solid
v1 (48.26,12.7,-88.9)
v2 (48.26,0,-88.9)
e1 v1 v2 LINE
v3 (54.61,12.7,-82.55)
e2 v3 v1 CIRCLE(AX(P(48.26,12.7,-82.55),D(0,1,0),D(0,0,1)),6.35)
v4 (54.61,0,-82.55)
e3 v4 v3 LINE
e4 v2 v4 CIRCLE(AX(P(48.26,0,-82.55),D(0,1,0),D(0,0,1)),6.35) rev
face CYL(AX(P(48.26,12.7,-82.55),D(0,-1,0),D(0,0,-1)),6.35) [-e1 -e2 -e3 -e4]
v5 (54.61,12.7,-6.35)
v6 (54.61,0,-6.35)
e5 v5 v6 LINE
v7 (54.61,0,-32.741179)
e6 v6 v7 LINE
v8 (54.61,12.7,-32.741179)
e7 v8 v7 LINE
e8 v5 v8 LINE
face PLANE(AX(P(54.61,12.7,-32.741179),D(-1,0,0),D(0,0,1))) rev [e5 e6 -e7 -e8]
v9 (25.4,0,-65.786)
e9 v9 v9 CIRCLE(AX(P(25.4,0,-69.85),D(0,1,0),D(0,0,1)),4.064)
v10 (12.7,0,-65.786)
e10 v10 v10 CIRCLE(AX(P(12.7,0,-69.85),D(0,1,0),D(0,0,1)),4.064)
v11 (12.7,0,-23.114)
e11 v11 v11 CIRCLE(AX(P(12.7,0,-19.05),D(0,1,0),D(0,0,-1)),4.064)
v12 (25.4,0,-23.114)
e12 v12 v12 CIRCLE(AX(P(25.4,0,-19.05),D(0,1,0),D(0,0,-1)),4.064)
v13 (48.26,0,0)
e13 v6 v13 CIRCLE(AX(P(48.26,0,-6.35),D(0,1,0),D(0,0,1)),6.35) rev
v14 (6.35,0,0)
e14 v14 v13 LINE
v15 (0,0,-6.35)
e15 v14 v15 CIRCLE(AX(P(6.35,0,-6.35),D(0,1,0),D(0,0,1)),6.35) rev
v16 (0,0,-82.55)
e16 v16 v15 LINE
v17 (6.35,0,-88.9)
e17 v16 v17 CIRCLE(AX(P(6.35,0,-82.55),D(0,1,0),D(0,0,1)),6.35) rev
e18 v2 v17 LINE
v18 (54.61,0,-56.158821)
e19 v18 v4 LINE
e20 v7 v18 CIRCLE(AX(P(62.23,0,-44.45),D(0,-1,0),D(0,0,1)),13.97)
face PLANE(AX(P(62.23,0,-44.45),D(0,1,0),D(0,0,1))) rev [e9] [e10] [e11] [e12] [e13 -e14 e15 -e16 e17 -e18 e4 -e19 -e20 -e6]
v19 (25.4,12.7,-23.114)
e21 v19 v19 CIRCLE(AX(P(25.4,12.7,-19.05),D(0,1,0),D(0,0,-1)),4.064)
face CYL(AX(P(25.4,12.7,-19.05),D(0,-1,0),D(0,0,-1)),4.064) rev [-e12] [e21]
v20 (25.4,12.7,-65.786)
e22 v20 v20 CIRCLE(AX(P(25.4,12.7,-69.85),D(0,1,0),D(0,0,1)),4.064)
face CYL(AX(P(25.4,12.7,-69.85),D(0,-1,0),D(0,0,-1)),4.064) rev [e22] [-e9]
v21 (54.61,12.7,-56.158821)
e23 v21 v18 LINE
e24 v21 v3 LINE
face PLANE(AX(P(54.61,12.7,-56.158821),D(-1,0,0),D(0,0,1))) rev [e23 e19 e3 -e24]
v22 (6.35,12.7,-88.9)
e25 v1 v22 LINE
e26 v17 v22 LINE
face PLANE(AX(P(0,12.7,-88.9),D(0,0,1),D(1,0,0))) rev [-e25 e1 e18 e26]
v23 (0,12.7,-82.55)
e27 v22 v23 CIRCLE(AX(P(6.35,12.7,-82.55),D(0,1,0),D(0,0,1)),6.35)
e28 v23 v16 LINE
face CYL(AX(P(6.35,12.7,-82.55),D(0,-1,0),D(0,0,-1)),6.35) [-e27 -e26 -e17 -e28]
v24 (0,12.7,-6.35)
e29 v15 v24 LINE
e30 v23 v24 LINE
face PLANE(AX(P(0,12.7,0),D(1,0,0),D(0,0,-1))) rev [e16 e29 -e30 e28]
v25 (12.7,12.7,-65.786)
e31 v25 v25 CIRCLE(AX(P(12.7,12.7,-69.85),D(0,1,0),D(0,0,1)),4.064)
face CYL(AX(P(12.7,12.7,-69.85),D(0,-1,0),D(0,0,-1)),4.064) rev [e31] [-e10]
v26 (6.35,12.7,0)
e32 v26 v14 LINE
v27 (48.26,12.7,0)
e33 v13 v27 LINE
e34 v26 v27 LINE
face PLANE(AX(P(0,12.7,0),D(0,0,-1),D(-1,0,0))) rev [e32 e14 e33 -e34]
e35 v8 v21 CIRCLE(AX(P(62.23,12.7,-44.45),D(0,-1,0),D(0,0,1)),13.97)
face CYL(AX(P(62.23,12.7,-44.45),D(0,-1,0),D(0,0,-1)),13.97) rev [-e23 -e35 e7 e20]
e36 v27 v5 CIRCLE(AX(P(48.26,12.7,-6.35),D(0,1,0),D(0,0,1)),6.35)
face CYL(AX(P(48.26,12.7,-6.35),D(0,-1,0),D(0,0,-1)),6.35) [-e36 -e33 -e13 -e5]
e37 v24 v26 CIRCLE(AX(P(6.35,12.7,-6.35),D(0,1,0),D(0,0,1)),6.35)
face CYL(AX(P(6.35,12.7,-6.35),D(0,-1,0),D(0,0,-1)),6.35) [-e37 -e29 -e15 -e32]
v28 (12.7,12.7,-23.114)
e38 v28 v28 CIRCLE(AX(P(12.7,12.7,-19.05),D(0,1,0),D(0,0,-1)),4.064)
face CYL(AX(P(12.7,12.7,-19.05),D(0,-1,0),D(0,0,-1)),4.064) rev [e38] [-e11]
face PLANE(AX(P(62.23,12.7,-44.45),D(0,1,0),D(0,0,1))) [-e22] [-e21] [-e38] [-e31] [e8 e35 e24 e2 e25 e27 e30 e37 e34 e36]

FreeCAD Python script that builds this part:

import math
import FreeCAD as App
import Part
import Sketcher

V = App.Vector
Q = App.Units.Quantity


def edges_at(feature, points):
    """Names of the edges that pass closest to the given points."""
    edges = feature.Shape.Edges
    near = lambda p: min(range(len(edges)), key=lambda i: edges[i].distToShape(Part.Vertex(*p))[0])
    return sorted({f"Edge{near(p) + 1}" for p in points})

doc = App.newDocument("Part")
body = doc.addObject("PartDesign::Body", "Body")

sketch1 = doc.addObject("Sketcher::SketchObject", "Sketch")
body.addObject(sketch1)
sketch1.AttachmentSupport = (doc.XZ_Plane, [""])
sketch1.MapMode = "FlatFace"
sketch1.addGeometry(Part.LineSegment(V(54.6, 0, 0), V(54.6, -32.7, 0)), False)
sketch1.addGeometry(Part.ArcOfCircle(Part.Circle(V(62.2, -44.5, 0), V(0, 0, 1), 14), math.radians(123), math.radians(237)), False)
sketch1.addGeometry(Part.LineSegment(V(54.6, -56.2, 0), V(54.6, -88.9, 0)), False)
sketch1.addGeometry(Part.LineSegment(V(54.6, -88.9, 0), V(0, -88.9, 0)), False)
sketch1.addGeometry(Part.LineSegment(V(0, -88.9, 0), V(0, 0, 0)), False)
sketch1.addGeometry(Part.LineSegment(V(0, 0, 0), V(54.6, 0, 0)), False)
sketch1.addGeometry(Part.Circle(V(25.4, -19.1, 0), V(0, 0, 1), 4.1), False)
sketch1.addGeometry(Part.Circle(V(12.7, -19.1, 0), V(0, 0, 1), 4.1), False)
sketch1.addGeometry(Part.Circle(V(25.4, -69.8, 0), V(0, 0, 1), 4.1), False)
sketch1.addGeometry(Part.Circle(V(12.7, -69.8, 0), V(0, 0, 1), 4.1), False)
sketch1.addConstraint(Sketcher.Constraint("Coincident", 0, 2, 1, 1))
sketch1.addConstraint(Sketcher.Constraint("Coincident", 1, 2, 2, 1))
sketch1.addConstraint(Sketcher.Constraint("Coincident", 2, 2, 3, 1))
sketch1.addConstraint(Sketcher.Constraint("Coincident", 3, 2, 4, 1))
sketch1.addConstraint(Sketcher.Constraint("Coincident", 4, 2, 5, 1))
sketch1.addConstraint(Sketcher.Constraint("Coincident", 5, 2, 0, 1))
sketch1.addConstraint(Sketcher.Constraint("Vertical", 0))
sketch1.addConstraint(Sketcher.Constraint("Vertical", 2))
sketch1.addConstraint(Sketcher.Constraint("Horizontal", 3))
sketch1.addConstraint(Sketcher.Constraint("Vertical", 4))
sketch1.addConstraint(Sketcher.Constraint("Horizontal", 5))
sketch1.addConstraint(Sketcher.Constraint("Coincident", 4, 2, -1, 1))
sketch1.addConstraint(Sketcher.Constraint("Equal", 6, 7))
sketch1.addConstraint(Sketcher.Constraint("Equal", 7, 8))
sketch1.addConstraint(Sketcher.Constraint("Equal", 8, 9))
sketch1.addConstraint(Sketcher.Constraint("Horizontal", 6, 3, 7, 3))
sketch1.addConstraint(Sketcher.Constraint("Horizontal", 8, 3, 9, 3))
sketch1.addConstraint(Sketcher.Constraint("Vertical", 6, 3, 8, 3))
sketch1.addConstraint(Sketcher.Constraint("Vertical", 7, 3, 9, 3))
sketch1.addConstraint(Sketcher.Constraint("Vertical", 0, 2, 1, 2))
sketch1.addConstraint(Sketcher.Constraint("Equal", 0, 2))
sketch1.addConstraint(Sketcher.Constraint("Diameter", 6, Q("0.32 in")))
sketch1.addConstraint(Sketcher.Constraint("Radius", 1, Q("0.55 in")))
sketch1.addConstraint(Sketcher.Constraint("DistanceY", 4, 1, 4, 2, Q("3.5 in")))
sketch1.addConstraint(Sketcher.Constraint("DistanceX", -1, 1, 6, 3, Q("1 in")))
sketch1.addConstraint(Sketcher.Constraint("DistanceY", 1, 3, 6, 3, Q("1 in")))
sketch1.addConstraint(Sketcher.Constraint("DistanceY", 8, 3, 1, 3, Q("1 in")))
sketch1.addConstraint(Sketcher.Constraint("DistanceX", 3, 2, 3, 1, Q("2.15 in")))
sketch1.addConstraint(Sketcher.Constraint("DistanceX", -1, 1, 7, 3, Q("0.5 in")))
sketch1.addConstraint(Sketcher.Constraint("DistanceX", 0, 2, 1, 3, Q("0.3 in")))
pad1 = doc.addObject("PartDesign::Pad", "Pad")
body.addObject(pad1)
pad1.Profile = sketch1
pad1.Length = Q("0.5 in")
pad1.Reversed = True
doc.recompute()

fillet = doc.addObject("PartDesign::Fillet", "Fillet")
body.addObject(fillet)
fillet.Base = (pad1, edges_at(pad1, [
    (0, 6.35, -88.9),
    (54.61, 6.35, -88.9),
    (54.61, 6.35, 0),
    (0, 6.35, 0),
]))
fillet.Radius = Q("0.25 in")

doc.recompute()
